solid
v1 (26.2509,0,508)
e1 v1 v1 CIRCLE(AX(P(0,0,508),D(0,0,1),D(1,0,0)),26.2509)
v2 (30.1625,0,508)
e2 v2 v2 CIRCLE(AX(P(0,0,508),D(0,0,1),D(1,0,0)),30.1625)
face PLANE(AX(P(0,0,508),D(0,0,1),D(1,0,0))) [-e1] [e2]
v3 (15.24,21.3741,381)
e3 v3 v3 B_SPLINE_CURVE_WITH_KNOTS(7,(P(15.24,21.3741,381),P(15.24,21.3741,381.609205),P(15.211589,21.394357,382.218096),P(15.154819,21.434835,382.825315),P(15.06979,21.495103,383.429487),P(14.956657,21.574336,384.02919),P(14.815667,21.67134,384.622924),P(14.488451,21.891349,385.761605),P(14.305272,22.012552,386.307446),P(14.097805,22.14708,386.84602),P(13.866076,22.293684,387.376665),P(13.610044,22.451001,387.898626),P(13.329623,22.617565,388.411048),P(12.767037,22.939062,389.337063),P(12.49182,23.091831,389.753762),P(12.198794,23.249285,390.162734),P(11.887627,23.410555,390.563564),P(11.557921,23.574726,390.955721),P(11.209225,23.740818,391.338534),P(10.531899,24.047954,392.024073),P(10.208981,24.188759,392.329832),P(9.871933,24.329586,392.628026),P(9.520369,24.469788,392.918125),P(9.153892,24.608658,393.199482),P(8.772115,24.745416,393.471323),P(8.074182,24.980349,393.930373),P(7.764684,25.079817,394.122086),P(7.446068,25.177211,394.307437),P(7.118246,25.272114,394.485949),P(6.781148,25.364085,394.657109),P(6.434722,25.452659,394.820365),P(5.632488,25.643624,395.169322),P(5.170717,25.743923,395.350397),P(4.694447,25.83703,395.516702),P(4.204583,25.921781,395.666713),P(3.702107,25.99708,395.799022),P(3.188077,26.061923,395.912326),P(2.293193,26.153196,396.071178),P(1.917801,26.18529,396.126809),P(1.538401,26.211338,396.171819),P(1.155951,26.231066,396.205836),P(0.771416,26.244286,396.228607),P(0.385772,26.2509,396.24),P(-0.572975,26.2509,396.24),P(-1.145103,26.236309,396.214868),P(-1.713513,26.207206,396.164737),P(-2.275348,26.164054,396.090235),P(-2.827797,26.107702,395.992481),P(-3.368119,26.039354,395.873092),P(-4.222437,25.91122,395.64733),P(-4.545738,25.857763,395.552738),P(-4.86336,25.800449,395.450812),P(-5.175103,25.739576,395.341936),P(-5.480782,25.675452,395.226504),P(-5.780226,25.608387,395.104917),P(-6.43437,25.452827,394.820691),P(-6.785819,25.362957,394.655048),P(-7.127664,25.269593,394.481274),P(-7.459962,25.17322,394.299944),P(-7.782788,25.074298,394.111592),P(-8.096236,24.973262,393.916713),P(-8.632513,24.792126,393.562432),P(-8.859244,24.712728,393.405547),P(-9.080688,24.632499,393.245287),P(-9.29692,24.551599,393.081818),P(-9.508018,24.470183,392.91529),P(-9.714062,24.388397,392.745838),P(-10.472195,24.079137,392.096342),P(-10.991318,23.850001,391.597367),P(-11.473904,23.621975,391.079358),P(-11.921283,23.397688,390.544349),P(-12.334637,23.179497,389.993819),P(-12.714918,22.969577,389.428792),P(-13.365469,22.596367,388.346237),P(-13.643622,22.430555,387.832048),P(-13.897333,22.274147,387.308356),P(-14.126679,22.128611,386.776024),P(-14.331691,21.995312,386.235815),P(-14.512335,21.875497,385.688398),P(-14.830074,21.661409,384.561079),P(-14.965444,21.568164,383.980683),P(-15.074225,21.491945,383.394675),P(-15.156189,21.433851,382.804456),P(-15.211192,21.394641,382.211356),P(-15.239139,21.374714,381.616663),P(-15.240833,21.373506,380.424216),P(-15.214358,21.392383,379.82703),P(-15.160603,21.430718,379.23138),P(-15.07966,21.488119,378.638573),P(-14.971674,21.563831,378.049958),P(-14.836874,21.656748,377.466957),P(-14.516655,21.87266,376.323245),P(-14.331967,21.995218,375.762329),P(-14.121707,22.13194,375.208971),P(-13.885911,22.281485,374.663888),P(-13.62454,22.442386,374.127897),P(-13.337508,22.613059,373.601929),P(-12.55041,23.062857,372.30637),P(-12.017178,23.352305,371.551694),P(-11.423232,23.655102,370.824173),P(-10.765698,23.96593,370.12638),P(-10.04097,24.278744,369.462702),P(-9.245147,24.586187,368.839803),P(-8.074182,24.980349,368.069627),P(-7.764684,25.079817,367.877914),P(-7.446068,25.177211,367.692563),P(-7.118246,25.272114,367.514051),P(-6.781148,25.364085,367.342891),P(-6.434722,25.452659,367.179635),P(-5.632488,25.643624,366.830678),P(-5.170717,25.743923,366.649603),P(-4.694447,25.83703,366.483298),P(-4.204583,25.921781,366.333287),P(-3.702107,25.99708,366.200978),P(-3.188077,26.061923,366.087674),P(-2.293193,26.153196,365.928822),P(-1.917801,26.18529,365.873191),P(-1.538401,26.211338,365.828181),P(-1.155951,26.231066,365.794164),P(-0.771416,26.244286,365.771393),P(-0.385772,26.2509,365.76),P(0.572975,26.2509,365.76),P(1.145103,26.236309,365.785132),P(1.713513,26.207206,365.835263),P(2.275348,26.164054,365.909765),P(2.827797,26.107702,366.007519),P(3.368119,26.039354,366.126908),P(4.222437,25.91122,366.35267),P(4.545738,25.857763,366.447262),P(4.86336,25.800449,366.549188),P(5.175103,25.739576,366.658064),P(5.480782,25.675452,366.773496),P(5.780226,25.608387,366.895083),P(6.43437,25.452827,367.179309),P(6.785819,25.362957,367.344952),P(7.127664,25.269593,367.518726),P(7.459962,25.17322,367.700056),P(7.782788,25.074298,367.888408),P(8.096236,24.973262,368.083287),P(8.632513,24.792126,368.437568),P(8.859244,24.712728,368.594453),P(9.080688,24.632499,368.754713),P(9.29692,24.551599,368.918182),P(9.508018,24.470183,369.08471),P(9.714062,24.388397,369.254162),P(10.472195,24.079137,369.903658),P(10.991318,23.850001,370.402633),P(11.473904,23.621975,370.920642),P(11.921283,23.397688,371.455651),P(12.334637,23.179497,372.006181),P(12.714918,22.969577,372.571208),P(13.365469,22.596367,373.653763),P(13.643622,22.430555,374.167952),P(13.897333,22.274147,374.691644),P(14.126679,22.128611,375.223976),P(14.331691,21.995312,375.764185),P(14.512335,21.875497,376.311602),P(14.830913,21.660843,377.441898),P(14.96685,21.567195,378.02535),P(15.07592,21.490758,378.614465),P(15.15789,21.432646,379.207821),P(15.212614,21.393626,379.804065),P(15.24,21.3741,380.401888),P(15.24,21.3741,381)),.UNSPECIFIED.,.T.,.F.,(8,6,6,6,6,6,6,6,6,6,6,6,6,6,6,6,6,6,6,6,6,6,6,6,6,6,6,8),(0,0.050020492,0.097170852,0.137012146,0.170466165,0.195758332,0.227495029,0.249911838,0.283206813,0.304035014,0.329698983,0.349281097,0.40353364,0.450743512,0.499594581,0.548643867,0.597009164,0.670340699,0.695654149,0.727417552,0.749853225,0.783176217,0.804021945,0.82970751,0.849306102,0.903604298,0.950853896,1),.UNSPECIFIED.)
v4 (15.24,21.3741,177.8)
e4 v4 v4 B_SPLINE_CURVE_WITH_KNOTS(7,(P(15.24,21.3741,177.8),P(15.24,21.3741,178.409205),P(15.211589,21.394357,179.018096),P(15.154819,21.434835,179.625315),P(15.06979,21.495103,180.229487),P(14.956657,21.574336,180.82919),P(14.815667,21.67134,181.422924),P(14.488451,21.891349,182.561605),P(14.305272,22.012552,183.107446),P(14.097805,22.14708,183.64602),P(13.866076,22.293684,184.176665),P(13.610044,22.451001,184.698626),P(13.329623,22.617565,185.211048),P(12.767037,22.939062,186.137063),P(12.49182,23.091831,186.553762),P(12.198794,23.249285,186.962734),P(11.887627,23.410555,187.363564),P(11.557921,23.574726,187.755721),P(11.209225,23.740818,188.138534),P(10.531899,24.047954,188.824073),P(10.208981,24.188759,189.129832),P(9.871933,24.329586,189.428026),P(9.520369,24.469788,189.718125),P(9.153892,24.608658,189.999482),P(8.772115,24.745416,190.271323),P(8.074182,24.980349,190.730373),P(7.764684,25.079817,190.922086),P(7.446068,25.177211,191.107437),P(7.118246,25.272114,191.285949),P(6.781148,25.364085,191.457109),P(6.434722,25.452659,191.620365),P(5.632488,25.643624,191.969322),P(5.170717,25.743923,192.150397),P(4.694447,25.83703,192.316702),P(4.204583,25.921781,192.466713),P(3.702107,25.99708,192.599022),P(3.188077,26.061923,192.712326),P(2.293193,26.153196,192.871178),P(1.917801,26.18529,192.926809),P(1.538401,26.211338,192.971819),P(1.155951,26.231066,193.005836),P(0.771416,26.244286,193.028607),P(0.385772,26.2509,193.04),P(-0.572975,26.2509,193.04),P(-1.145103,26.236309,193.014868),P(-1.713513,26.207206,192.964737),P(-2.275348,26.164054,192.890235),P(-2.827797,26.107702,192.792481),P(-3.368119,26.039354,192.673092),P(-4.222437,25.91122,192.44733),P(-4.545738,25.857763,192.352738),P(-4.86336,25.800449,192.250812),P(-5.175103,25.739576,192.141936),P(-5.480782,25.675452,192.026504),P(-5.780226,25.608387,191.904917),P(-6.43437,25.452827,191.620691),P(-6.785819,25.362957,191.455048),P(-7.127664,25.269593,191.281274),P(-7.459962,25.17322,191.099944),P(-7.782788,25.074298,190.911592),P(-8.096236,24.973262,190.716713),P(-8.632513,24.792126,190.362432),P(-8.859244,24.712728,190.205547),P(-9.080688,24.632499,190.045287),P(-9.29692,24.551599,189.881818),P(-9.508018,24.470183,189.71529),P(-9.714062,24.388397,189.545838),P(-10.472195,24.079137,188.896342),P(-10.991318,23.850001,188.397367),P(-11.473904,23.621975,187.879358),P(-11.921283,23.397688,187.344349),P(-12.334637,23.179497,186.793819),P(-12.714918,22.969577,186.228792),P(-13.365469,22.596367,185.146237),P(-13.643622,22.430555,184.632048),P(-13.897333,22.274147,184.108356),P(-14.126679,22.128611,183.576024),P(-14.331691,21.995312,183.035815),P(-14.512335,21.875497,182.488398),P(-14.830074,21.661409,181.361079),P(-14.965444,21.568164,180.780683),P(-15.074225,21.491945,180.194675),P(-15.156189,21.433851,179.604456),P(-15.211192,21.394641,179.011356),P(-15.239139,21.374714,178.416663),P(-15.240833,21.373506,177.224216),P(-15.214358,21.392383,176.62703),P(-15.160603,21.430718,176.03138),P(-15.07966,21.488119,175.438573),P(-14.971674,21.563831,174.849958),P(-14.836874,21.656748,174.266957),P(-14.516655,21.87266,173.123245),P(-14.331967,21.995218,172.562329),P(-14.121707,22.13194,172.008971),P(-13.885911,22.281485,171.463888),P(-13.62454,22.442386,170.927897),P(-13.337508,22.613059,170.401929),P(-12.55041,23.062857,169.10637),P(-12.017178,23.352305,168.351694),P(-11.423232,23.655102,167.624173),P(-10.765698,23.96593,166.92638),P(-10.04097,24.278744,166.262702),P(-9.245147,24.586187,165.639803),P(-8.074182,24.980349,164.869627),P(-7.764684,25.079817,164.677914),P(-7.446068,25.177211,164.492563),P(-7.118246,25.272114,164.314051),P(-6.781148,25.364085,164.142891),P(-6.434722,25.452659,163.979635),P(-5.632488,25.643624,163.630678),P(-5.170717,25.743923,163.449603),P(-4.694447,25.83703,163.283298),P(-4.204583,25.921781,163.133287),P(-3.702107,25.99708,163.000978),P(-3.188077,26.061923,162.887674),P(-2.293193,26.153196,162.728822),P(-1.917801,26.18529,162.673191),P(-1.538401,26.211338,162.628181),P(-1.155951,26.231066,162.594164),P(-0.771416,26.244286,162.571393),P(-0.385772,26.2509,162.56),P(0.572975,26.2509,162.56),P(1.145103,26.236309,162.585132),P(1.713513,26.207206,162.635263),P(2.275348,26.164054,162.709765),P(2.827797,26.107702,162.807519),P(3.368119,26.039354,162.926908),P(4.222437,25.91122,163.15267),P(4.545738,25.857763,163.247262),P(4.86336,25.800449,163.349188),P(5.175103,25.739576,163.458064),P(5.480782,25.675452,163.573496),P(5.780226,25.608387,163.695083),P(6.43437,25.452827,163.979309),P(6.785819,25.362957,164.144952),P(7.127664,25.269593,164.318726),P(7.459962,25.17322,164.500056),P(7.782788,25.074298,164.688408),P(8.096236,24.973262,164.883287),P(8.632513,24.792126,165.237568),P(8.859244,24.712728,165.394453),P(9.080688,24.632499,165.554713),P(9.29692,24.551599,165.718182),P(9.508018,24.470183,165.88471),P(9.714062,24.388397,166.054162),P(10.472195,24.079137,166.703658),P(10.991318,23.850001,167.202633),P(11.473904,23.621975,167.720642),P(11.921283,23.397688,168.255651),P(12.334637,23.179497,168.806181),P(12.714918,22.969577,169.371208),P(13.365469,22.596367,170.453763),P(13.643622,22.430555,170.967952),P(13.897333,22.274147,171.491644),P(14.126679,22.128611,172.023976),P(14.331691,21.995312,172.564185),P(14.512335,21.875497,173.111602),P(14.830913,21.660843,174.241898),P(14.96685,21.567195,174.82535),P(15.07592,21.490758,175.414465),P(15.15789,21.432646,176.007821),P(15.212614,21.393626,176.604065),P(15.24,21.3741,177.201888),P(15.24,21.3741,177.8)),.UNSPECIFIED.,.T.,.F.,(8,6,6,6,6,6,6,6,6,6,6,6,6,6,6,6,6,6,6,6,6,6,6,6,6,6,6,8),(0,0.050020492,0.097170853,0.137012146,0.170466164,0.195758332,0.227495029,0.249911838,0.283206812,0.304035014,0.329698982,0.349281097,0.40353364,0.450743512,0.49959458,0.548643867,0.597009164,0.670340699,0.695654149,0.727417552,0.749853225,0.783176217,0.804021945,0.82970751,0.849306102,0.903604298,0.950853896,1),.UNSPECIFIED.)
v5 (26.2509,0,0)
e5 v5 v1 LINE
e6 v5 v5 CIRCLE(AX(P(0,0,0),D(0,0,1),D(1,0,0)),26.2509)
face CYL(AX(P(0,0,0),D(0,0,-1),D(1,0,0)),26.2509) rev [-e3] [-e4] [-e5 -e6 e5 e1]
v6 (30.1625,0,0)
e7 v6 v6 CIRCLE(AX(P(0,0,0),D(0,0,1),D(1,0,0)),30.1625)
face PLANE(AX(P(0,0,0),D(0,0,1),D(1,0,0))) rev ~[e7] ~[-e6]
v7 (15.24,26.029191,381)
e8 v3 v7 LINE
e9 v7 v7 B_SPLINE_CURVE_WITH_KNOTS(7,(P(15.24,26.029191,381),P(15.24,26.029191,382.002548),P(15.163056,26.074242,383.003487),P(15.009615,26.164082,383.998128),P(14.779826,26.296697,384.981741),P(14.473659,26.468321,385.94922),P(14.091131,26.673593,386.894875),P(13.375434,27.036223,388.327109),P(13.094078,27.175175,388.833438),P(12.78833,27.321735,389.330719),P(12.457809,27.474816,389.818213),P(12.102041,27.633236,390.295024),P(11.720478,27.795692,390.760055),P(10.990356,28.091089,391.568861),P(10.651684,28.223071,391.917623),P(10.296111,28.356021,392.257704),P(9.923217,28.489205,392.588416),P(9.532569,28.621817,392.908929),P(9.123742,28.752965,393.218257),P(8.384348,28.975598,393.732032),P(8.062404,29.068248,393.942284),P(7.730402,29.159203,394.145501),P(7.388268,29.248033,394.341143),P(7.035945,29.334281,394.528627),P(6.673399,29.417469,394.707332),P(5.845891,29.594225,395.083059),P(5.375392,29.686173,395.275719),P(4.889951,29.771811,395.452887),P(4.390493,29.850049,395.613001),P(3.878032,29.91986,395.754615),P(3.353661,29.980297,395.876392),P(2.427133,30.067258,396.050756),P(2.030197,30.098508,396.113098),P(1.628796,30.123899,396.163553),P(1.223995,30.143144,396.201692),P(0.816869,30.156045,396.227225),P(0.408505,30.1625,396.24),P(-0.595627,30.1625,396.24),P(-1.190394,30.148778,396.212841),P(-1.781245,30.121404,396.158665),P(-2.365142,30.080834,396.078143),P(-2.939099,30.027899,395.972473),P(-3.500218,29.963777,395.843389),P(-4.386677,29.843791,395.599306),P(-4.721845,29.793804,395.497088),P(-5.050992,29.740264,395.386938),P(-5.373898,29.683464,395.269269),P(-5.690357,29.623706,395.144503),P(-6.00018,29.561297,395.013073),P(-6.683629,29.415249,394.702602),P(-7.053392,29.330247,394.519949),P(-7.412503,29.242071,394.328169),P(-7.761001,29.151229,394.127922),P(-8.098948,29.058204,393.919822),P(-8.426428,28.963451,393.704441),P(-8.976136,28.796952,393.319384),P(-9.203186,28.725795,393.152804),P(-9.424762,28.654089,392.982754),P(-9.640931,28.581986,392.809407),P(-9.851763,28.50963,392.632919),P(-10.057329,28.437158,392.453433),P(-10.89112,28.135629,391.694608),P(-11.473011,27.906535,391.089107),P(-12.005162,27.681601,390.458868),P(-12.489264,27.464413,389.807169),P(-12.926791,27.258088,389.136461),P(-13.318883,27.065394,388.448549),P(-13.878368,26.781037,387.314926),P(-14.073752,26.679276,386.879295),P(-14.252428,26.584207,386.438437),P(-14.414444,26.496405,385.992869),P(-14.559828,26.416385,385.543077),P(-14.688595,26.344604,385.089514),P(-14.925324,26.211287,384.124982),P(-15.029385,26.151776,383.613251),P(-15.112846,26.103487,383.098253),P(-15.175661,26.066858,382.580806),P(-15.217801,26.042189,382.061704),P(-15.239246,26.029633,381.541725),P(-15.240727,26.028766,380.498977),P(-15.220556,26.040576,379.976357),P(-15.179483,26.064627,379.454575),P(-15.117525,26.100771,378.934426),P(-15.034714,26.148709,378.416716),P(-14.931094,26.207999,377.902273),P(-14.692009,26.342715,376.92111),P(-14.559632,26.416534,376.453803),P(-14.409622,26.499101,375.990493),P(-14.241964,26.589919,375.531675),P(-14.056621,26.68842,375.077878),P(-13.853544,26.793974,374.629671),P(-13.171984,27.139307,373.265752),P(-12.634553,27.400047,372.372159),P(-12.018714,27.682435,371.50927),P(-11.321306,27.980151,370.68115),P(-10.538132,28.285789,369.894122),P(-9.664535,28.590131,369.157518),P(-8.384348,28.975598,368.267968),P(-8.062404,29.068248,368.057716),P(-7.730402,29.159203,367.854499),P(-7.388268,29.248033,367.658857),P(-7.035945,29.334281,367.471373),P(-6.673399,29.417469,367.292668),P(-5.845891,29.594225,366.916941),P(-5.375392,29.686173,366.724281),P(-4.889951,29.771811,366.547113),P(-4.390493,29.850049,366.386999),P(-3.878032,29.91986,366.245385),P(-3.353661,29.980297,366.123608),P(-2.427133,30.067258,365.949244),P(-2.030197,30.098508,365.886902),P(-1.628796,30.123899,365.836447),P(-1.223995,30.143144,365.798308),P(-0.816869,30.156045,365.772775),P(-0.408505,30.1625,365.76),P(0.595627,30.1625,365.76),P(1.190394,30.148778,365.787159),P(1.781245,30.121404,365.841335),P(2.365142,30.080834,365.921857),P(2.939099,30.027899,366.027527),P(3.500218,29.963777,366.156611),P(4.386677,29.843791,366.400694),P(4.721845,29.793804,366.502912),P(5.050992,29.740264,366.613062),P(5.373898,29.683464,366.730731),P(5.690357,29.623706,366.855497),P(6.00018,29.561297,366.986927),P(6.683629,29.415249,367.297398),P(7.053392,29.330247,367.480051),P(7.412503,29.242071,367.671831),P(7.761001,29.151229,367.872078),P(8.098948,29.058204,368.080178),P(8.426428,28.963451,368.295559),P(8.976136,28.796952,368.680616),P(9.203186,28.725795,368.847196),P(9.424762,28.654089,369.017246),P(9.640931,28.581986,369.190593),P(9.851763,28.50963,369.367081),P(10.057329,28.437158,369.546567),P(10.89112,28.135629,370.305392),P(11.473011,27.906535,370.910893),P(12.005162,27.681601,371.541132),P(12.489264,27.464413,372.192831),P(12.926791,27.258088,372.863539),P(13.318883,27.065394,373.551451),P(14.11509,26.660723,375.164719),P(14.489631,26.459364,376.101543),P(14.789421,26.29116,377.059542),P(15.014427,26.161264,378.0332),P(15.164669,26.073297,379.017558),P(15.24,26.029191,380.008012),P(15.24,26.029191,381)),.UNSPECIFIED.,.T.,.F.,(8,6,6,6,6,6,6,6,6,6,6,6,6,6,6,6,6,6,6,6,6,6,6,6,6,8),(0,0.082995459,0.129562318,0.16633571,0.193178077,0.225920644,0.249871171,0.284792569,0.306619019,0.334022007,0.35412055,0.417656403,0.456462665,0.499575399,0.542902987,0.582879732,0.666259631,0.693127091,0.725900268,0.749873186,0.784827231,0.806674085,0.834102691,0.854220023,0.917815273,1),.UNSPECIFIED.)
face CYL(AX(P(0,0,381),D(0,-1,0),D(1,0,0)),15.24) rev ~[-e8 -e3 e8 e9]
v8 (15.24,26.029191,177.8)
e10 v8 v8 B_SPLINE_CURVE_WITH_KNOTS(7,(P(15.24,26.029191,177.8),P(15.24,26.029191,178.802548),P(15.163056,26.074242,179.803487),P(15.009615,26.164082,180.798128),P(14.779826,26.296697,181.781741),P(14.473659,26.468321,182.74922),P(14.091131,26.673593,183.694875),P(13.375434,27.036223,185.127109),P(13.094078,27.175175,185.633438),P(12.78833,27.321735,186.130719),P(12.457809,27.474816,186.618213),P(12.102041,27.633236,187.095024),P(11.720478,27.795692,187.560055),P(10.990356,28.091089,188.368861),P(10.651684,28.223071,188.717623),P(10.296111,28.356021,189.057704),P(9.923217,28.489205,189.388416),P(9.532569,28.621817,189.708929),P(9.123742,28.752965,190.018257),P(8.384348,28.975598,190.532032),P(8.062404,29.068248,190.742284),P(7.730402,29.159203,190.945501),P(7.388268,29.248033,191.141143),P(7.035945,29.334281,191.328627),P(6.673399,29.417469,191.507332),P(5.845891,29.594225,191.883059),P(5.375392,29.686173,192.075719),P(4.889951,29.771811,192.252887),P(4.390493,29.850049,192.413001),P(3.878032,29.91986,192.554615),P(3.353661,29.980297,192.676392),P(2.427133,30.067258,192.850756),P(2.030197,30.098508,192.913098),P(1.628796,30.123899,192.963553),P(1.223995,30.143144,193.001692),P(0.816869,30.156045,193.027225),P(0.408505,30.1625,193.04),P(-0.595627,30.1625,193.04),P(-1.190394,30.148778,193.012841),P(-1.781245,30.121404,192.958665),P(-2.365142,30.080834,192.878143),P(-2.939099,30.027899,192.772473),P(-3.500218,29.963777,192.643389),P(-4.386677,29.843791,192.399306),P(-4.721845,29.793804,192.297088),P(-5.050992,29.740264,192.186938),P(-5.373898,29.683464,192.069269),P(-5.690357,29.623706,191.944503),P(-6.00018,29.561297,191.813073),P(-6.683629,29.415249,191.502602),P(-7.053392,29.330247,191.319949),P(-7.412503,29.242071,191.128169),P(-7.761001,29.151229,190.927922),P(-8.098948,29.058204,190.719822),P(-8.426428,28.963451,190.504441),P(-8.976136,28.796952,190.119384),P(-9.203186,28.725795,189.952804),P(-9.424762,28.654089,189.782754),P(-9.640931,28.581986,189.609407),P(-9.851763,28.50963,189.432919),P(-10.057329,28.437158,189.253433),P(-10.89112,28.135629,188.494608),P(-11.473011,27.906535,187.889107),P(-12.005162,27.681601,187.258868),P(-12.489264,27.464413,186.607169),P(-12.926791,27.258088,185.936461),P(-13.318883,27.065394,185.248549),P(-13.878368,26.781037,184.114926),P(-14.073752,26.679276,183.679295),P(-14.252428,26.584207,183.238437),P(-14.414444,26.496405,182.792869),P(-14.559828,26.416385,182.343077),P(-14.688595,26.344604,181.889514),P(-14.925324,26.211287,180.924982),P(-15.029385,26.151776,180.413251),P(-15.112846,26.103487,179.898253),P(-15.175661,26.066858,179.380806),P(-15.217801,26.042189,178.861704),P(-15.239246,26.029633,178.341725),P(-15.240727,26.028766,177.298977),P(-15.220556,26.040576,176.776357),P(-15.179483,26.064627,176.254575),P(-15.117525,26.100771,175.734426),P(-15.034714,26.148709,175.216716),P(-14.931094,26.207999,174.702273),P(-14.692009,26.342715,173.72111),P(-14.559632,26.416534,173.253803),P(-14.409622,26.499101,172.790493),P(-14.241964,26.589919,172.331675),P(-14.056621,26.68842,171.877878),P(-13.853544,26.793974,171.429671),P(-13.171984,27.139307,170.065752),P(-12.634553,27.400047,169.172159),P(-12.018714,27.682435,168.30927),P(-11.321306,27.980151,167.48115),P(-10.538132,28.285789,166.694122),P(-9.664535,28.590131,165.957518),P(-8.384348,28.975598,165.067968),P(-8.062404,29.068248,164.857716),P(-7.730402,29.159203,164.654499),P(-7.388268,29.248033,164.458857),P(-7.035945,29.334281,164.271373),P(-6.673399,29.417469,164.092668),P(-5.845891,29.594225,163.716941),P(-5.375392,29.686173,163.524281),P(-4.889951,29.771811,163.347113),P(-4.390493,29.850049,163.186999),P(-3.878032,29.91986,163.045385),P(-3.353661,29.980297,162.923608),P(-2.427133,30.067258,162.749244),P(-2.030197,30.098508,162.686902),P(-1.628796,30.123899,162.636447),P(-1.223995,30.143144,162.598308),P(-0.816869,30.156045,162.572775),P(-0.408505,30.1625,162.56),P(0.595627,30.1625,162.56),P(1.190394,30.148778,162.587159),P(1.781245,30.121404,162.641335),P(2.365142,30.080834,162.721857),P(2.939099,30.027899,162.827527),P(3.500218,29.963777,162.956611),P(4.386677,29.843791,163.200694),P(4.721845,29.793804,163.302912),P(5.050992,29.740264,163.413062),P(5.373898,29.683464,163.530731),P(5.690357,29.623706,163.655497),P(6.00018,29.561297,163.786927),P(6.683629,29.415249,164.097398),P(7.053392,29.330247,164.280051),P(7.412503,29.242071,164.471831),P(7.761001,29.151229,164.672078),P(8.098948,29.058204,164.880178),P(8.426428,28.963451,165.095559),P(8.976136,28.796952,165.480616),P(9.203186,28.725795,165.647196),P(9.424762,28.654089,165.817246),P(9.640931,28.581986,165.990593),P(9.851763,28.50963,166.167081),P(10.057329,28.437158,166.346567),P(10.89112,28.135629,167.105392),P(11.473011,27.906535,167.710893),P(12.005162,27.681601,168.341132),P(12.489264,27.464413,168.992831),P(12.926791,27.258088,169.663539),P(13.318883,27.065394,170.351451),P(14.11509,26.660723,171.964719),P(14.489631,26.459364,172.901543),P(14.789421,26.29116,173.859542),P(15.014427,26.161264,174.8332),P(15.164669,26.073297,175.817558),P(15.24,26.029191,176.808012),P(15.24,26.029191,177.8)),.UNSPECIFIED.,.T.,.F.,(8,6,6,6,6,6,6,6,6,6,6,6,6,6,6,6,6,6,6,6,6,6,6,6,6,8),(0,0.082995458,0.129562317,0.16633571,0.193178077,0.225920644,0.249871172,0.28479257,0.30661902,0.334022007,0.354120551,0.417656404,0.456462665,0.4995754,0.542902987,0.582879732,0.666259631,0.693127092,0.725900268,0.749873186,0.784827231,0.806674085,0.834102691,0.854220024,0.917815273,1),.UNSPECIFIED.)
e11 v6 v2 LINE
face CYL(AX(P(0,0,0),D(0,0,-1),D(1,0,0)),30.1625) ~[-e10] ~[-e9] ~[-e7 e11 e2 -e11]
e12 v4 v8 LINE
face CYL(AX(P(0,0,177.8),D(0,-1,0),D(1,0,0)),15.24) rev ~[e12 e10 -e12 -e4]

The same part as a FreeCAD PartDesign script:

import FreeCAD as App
import Part
import Sketcher
from FreeCAD import Vector
Q = App.Units.Quantity

doc = App.newDocument("Part")
params = doc.addObject("Spreadsheet::Sheet", "Params")
for row, (alias, value) in enumerate([
    ("sketch1_diameter", "2.375 in"),
    ("sketch1_diameter2", "2.067 in"),
    ("pad1_length", "20 in"),
    ("sketch2_diameter", "1.2 in"),
    ("pocket1_length", "106.83089 mm"),
    ("sketch3_diameter", "1.2 in"),
    ("pocket2_length", "102.80304 mm"),
], start=1):
    params.set(f"A{row}", alias)
    params.set(f"B{row}", "=" + value)
    params.setAlias(f"B{row}", alias)

body = doc.addObject("PartDesign::Body", "Body")

# Sketch on XY plane
sketch1 = body.newObject("Sketcher::SketchObject", "Sketch")
sketch1.AttachmentSupport = (doc.getObject("XY_Plane"), [""])
sketch1.MapMode = "FlatFace"
sketch1.addGeometry([
    Part.Circle(Vector(0, 0, 0), Vector(0, 0, 1), 30.1625),
    Part.Circle(Vector(0, 0, 0), Vector(0, 0, 1), 26.2509),
], False)
sketch1.addConstraint([
    Sketcher.Constraint("Coincident", 0, 3, -1, 1),
    Sketcher.Constraint("Coincident", 1, 3, -1, 1),
    Sketcher.Constraint("Diameter", 0, Q("2.375 in")),
    Sketcher.Constraint("Diameter", 1, Q("2.067 in")),
])
sketch1.setExpression("Constraints[2]", "Params.sketch1_diameter")
sketch1.setExpression("Constraints[3]", "Params.sketch1_diameter2")
pad1 = body.newObject("PartDesign::Pad", "Pad")
pad1.Profile = sketch1
pad1.setExpression("Length", "Params.pad1_length")

# Sketch on XZ plane
sketch2 = body.newObject("Sketcher::SketchObject", "Sketch001")
sketch2.AttachmentSupport = (doc.getObject("XZ_Plane"), [""])
sketch2.MapMode = "FlatFace"
sketch2.addGeometry(Part.Circle(Vector(0, 381, 0), Vector(0, 0, 1), 15.24), False)
sketch2.addConstraint([
    Sketcher.Constraint("PointOnObject", 0, 3, -2),
    Sketcher.Constraint("Diameter", 0, Q("1.2 in")),
    Sketcher.Constraint("DistanceY", -1, 1, 0, 3, Q("15 in")),
])
sketch2.setExpression("Constraints[1]", "Params.sketch2_diameter")
pocket1 = body.newObject("PartDesign::Pocket", "Pocket")
pocket1.Profile = sketch2
pocket1.setExpression("Length", "Params.pocket1_length")

# Sketch on XZ plane
sketch3 = body.newObject("Sketcher::SketchObject", "Sketch002")
sketch3.AttachmentSupport = (doc.getObject("XZ_Plane"), [""])
sketch3.MapMode = "FlatFace"
sketch3.addGeometry(Part.Circle(Vector(0, 177.8, 0), Vector(0, 0, 1), 15.24), False)
sketch3.addConstraint([
    Sketcher.Constraint("PointOnObject", 0, 3, -2),
    Sketcher.Constraint("Diameter", 0, Q("1.2 in")),
    Sketcher.Constraint("DistanceY", -1, 1, 0, 3, Q("7 in")),
])
sketch3.setExpression("Constraints[1]", "Params.sketch3_diameter")
pocket2 = body.newObject("PartDesign::Pocket", "Pocket001")
pocket2.Profile = sketch3
pocket2.setExpression("Length", "Params.pocket2_length")

doc.recompute()
